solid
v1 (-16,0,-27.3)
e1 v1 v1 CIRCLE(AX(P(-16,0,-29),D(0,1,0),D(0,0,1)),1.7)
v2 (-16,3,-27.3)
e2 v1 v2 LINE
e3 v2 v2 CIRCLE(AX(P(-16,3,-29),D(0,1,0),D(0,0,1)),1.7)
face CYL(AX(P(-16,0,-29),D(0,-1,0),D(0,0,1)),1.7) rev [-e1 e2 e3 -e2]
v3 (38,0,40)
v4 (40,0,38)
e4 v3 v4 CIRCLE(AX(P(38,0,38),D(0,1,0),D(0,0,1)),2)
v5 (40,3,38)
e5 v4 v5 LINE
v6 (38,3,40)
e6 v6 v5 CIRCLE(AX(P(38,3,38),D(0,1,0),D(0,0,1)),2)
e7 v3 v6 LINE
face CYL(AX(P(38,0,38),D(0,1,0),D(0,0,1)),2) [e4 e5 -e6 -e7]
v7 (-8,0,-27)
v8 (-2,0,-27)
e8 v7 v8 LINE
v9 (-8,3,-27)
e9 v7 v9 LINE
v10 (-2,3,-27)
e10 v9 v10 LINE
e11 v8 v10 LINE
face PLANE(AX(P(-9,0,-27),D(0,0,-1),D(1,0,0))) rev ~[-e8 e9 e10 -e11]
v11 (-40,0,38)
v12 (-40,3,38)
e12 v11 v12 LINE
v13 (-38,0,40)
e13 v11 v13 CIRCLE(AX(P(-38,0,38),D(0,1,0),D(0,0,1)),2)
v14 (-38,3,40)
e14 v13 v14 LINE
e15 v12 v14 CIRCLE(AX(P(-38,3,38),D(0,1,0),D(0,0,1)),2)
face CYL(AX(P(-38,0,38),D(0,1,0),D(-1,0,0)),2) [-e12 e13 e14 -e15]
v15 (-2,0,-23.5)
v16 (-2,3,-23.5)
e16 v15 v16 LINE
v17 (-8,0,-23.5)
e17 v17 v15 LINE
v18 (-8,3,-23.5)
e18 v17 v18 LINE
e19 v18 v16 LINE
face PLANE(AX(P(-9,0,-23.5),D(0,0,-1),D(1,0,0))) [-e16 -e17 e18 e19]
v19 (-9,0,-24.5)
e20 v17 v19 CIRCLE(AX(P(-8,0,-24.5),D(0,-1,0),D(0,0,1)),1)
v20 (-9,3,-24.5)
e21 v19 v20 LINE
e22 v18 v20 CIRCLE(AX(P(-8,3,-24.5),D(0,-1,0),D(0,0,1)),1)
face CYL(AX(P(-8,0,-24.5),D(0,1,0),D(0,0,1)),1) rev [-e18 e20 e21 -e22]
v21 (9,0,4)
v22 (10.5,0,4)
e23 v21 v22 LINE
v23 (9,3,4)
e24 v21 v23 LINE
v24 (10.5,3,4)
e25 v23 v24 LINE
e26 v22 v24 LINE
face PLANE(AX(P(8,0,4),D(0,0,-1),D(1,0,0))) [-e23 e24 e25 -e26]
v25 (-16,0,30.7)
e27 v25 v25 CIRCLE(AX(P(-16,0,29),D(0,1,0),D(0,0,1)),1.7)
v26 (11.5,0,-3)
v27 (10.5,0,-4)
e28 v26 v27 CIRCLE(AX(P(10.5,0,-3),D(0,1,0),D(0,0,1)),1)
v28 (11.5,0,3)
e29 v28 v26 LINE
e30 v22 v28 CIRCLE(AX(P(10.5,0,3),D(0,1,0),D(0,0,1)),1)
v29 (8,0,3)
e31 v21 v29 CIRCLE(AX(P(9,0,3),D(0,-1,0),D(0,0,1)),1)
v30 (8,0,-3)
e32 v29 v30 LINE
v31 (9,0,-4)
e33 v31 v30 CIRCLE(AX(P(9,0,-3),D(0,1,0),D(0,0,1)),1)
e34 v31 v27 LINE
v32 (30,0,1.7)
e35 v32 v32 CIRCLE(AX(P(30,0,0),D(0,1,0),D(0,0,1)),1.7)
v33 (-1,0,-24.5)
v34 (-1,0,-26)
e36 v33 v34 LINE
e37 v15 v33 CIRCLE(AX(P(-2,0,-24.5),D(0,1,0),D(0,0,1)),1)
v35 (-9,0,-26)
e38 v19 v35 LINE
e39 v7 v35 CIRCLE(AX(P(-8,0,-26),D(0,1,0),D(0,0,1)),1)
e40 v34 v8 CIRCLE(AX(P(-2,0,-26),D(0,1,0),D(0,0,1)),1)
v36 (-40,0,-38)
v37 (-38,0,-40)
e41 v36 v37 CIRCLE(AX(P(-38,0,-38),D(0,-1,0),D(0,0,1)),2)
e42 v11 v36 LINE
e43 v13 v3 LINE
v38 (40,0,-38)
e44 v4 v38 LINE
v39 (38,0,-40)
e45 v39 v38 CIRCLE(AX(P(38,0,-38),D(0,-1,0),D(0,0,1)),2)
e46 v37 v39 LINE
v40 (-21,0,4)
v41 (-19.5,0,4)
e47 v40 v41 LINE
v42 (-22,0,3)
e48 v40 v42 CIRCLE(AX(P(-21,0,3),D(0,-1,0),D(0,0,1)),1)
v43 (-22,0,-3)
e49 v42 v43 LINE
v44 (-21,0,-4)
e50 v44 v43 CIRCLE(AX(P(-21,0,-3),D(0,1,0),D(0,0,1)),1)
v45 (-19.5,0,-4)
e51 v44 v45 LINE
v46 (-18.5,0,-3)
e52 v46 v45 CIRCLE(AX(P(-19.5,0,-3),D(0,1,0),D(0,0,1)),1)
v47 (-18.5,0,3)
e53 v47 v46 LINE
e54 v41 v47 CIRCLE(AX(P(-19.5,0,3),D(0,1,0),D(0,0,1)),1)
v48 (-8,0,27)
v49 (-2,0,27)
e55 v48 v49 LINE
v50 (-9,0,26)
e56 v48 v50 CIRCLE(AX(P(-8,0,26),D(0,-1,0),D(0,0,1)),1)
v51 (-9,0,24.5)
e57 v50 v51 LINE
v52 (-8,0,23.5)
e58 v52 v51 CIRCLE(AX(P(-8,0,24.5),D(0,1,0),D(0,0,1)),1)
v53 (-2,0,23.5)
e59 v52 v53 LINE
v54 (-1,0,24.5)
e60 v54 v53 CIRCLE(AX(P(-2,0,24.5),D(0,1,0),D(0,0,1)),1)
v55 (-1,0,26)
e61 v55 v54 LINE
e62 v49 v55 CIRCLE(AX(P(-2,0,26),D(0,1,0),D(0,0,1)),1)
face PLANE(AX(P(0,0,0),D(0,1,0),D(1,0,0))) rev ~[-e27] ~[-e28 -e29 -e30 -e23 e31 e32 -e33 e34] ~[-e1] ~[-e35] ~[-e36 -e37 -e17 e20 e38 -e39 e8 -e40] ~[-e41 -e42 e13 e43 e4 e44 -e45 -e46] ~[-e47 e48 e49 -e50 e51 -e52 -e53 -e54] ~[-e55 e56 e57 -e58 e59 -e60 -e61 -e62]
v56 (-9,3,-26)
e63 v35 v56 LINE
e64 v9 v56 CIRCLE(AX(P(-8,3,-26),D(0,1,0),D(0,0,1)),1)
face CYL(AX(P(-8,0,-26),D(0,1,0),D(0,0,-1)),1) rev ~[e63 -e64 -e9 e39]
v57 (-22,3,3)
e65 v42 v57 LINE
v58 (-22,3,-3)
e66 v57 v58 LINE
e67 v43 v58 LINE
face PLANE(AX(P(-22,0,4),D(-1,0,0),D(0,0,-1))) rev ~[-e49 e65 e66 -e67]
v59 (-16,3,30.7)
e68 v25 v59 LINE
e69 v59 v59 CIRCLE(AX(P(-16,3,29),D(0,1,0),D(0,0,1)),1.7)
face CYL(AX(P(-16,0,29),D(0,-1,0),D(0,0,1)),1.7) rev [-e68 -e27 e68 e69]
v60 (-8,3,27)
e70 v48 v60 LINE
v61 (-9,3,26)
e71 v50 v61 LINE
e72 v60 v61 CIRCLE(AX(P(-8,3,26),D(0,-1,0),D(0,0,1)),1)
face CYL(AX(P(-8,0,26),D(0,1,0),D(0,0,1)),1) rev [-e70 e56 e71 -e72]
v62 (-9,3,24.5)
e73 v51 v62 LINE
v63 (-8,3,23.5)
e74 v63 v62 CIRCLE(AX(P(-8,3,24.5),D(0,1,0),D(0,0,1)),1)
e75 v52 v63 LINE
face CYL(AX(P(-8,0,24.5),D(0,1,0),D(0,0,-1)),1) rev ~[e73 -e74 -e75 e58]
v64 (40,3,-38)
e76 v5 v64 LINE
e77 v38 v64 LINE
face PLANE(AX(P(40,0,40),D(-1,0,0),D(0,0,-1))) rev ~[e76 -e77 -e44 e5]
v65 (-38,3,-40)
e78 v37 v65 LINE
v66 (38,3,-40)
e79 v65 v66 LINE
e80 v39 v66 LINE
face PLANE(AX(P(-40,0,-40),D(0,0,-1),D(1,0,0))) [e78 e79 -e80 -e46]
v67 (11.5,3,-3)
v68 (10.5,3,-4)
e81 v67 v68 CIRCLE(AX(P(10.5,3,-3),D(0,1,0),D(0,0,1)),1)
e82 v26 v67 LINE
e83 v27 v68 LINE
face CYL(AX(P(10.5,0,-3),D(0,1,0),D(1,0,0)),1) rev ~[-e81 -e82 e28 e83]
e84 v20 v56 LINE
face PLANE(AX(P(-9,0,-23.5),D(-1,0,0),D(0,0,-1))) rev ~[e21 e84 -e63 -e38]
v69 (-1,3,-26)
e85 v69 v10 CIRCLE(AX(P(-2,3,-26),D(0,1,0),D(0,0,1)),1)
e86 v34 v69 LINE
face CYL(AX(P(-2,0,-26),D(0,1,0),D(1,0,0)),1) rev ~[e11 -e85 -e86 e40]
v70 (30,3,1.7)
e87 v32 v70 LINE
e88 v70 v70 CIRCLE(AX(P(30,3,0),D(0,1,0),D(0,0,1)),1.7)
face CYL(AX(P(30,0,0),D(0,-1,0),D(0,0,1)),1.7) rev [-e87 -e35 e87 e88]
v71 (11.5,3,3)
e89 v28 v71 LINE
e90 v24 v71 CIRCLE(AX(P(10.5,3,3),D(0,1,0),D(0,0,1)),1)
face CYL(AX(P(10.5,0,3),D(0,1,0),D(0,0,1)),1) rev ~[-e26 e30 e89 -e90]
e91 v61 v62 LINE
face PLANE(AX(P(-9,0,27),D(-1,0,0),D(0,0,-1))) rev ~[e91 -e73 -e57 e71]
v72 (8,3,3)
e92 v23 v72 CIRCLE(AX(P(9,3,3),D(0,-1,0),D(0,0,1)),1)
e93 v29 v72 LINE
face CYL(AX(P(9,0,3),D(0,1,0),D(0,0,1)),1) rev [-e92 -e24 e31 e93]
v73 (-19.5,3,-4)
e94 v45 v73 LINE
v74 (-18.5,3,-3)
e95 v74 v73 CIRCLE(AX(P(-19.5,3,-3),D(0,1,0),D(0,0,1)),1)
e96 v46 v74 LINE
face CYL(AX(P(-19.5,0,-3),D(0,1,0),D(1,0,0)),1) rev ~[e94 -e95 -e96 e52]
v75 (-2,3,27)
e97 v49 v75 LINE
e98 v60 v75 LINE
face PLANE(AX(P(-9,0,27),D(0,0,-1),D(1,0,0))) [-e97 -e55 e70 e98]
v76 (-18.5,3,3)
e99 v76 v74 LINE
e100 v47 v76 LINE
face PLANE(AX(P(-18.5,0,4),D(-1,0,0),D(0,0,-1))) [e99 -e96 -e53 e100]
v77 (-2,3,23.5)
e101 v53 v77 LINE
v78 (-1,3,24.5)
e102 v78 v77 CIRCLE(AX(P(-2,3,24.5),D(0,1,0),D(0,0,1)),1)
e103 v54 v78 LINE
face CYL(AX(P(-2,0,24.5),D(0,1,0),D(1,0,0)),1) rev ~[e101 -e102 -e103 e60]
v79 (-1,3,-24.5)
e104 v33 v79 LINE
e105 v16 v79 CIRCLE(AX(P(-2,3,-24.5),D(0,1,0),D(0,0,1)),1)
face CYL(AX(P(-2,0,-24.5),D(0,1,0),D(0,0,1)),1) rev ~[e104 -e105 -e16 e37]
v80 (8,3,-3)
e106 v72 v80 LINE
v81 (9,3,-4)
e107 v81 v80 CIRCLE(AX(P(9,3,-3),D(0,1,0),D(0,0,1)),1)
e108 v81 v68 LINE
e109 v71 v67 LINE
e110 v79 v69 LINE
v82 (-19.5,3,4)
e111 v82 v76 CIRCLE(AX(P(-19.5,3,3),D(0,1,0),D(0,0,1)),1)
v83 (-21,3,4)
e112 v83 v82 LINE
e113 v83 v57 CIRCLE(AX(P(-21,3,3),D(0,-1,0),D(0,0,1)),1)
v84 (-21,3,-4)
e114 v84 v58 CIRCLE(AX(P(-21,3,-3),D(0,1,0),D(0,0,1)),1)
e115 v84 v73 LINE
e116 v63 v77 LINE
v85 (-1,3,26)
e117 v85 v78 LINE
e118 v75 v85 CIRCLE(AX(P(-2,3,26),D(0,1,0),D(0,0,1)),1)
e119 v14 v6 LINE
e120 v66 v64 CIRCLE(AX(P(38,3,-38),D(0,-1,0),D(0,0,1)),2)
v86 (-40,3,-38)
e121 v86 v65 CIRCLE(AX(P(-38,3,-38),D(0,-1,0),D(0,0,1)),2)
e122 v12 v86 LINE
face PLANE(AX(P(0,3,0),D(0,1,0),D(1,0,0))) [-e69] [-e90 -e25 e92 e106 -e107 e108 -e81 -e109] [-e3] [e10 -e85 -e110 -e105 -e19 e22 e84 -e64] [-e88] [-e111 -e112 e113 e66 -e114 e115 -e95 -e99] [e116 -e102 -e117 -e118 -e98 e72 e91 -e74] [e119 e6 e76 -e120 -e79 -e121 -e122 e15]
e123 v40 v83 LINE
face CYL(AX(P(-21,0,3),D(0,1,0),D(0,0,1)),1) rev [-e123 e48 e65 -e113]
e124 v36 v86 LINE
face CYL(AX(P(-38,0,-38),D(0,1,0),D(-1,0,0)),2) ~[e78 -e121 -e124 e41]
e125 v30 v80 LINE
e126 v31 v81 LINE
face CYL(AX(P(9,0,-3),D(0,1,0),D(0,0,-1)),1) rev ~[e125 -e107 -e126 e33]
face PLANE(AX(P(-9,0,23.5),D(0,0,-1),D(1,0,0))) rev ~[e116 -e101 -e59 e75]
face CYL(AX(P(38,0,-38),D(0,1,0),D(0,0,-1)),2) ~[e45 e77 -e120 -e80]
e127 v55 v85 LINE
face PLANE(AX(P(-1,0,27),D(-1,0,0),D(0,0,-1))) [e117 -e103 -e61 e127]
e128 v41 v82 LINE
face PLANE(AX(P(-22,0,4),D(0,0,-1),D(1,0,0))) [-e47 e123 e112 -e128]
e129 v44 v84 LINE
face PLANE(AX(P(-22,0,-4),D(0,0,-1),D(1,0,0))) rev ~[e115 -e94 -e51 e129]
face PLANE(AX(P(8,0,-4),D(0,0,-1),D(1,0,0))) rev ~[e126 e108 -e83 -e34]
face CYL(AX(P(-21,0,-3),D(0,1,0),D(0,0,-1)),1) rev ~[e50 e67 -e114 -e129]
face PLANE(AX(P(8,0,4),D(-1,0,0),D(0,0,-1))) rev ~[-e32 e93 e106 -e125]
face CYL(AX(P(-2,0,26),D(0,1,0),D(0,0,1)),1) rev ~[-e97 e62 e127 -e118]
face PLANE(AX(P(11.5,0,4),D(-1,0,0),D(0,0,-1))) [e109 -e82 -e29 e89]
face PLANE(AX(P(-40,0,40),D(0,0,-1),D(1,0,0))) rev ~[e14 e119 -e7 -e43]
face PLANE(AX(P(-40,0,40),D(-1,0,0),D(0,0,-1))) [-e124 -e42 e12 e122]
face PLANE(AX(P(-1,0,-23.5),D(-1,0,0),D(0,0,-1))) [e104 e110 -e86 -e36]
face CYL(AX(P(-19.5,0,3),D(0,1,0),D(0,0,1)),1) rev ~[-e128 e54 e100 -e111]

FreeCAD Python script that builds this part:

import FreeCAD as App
import Part
import Sketcher

V = App.Vector


def edges_at(feature, points):
    """Names of the edges that pass closest to the given points."""
    edges = feature.Shape.Edges
    near = lambda p: min(range(len(edges)), key=lambda i: edges[i].distToShape(Part.Vertex(*p))[0])
    return sorted({f"Edge{near(p) + 1}" for p in points})


def add_polygon(sketch, points):
    """Adds a closed chain of lines whose ends are joined by coincident constraints."""
    first, n = sketch.GeometryCount, len(points)
    for a, b in zip(points, points[1:] + points[:1]):
        sketch.addGeometry(Part.LineSegment(App.Vector(*a, 0), App.Vector(*b, 0)), False)
    for i in range(n):
        sketch.addConstraint(Sketcher.Constraint("Coincident", first + i, 2, first + (i + 1) % n, 1))

doc = App.newDocument("Part")
body = doc.addObject("PartDesign::Body", "Body")

# Sketch on XZ plane
sketch1 = body.newObject("Sketcher::SketchObject", "Sketch")
sketch1.AttachmentSupport = (doc.getObject("XZ_Plane"), [""])
sketch1.MapMode = "FlatFace"
add_polygon(sketch1, [(-40, -40), (-40, 40), (40, 40), (40, -40)])  # lines 0-3
sketch1.addConstraint(Sketcher.Constraint("Vertical", 0))
sketch1.addConstraint(Sketcher.Constraint("Horizontal", 1))
sketch1.addConstraint(Sketcher.Constraint("Vertical", 2))
sketch1.addConstraint(Sketcher.Constraint("Horizontal", 3))
sketch1.addConstraint(Sketcher.Constraint("Symmetric", 0, 2, 2, 2, -1, 1))
sketch1.addConstraint(Sketcher.Constraint("Equal", 3, 0))
sketch1.addConstraint(Sketcher.Constraint("DistanceX", 1, 1, 1, 2, 80.0))
pad1 = body.newObject("PartDesign::Pad", "Pad")
pad1.Profile = sketch1
pad1.Length = 3
pad1.Reversed = True

# Sketch on XZ plane
sketch2 = body.newObject("Sketcher::SketchObject", "Sketch001")
sketch2.AttachmentSupport = (doc.getObject("XZ_Plane"), [""])
sketch2.MapMode = "FlatFace"
sketch2.addGeometry(Part.Circle(V(30, 0, 0), V(0, 0, 1), 1.7), False)  # 0
sketch2.addGeometry(Part.Circle(V(-16, -29, 0), V(0, 0, 1), 1.7), False)  # 1
sketch2.addGeometry(Part.Circle(V(-16, 29, 0), V(0, 0, 1), 1.7), False)  # 2
add_polygon(sketch2, [(8, -4), (8, 4), (11.5, 4), (11.5, -4)])  # lines 3-6
add_polygon(sketch2, [(-22, -4), (-22, 4), (-18.5, 4), (-18.5, -4)])  # lines 7-10
add_polygon(sketch2, [(-9, -27), (-9, -23.5), (-1, -23.5), (-1, -27)])  # lines 11-14
add_polygon(sketch2, [(-9, 23.5), (-9, 27), (-1, 27), (-1, 23.5)])  # lines 15-18
sketch2.addConstraint(Sketcher.Constraint("Vertical", 3))
sketch2.addConstraint(Sketcher.Constraint("Horizontal", 4))
sketch2.addConstraint(Sketcher.Constraint("Vertical", 5))
sketch2.addConstraint(Sketcher.Constraint("Horizontal", 6))
sketch2.addConstraint(Sketcher.Constraint("Vertical", 7))
sketch2.addConstraint(Sketcher.Constraint("Horizontal", 8))
sketch2.addConstraint(Sketcher.Constraint("Vertical", 9))
sketch2.addConstraint(Sketcher.Constraint("Horizontal", 10))
sketch2.addConstraint(Sketcher.Constraint("Vertical", 11))
sketch2.addConstraint(Sketcher.Constraint("Horizontal", 12))
sketch2.addConstraint(Sketcher.Constraint("Vertical", 13))
sketch2.addConstraint(Sketcher.Constraint("Horizontal", 14))
sketch2.addConstraint(Sketcher.Constraint("Vertical", 15))
sketch2.addConstraint(Sketcher.Constraint("Horizontal", 16))
sketch2.addConstraint(Sketcher.Constraint("Vertical", 17))
sketch2.addConstraint(Sketcher.Constraint("Horizontal", 18))
sketch2.addConstraint(Sketcher.Constraint("Equal", 0, 1))
sketch2.addConstraint(Sketcher.Constraint("Equal", 1, 2))
sketch2.addConstraint(Sketcher.Constraint("Symmetric", 1, 3, 2, 3, -1))
sketch2.addConstraint(Sketcher.Constraint("Symmetric", 14, 2, 15, 2, -1))
sketch2.addConstraint(Sketcher.Constraint("Symmetric", 12, 2, 17, 2, -1))
sketch2.addConstraint(Sketcher.Constraint("PointOnObject", 0, 3, -1))
sketch2.addConstraint(Sketcher.Constraint("Horizontal", 4, 2, 7, 2))
sketch2.addConstraint(Sketcher.Constraint("Horizontal", 6, 2, 9, 2))
sketch2.addConstraint(Sketcher.Constraint("Equal", 6, 8))
sketch2.addConstraint(Sketcher.Constraint("Equal", 18, 3))
sketch2.addConstraint(Sketcher.Constraint("Equal", 10, 11))
sketch2.addConstraint(Sketcher.Constraint("Diameter", 0, 3.4))
sketch2.addConstraint(Sketcher.Constraint("DistanceX", 12, 1, 12, 2, 8.0))
sketch2.addConstraint(Sketcher.Constraint("DistanceX", 4, 1, 4, 2, 3.5))
sketch2.addConstraint(Sketcher.Constraint("DistanceX", -1, 1, 0, 3, 30.0))
sketch2.addConstraint(Sketcher.Constraint("DistanceX", 1, 3, -1, 1, 16.0))
sketch2.addConstraint(Sketcher.Constraint("DistanceY", 1, 3, -1, 1, 29.0))
sketch2.addConstraint(Sketcher.Constraint("DistanceX", -1, 1, 3, 2, 8.0))
sketch2.addConstraint(Sketcher.Constraint("DistanceY", -1, 1, 3, 2, 4.0))
sketch2.addConstraint(Sketcher.Constraint("DistanceX", 7, 2, -1, 1, 22.0))
sketch2.addConstraint(Sketcher.Constraint("DistanceX", 11, 2, -1, 1, 9.0))
sketch2.addConstraint(Sketcher.Constraint("DistanceY", 13, 2, -1, 1, 27.0))
pocket1 = body.newObject("PartDesign::Pocket", "Pocket")
pocket1.Profile = sketch2
pocket1.Length = 3
doc.recompute()

fillet = body.newObject("PartDesign::Fillet", "Fillet")
fillet.Base = (pocket1, edges_at(pocket1, [
    (11.5, 1.5, 4),
    (11.5, 1.5, -4),
    (8, 1.5, -4),
    (8, 1.5, 4),
]))
fillet.Radius = 1
doc.recompute()

fillet2 = body.newObject("PartDesign::Fillet", "Fillet001")
fillet2.Base = (fillet, edges_at(fillet, [
    (-1, 1.5, 27),
    (-1, 1.5, 23.5),
    (-9, 1.5, 23.5),
    (-9, 1.5, 27),
    (-1, 1.5, -23.5),
    (-1, 1.5, -27),
    (-9, 1.5, -27),
    (-9, 1.5, -23.5),
    (-18.5, 1.5, 4),
    (-18.5, 1.5, -4),
    (-22, 1.5, -4),
    (-22, 1.5, 4),
]))
fillet2.Radius = 1
doc.recompute()

fillet3 = body.newObject("PartDesign::Fillet", "Fillet002")
fillet3.Base = (fillet2, edges_at(fillet2, [
    (40, 1.5, 40),
    (-40, 1.5, 40),
    (-40, 1.5, -40),
    (40, 1.5, -40),
]))
fillet3.Radius = 2

doc.recompute()
